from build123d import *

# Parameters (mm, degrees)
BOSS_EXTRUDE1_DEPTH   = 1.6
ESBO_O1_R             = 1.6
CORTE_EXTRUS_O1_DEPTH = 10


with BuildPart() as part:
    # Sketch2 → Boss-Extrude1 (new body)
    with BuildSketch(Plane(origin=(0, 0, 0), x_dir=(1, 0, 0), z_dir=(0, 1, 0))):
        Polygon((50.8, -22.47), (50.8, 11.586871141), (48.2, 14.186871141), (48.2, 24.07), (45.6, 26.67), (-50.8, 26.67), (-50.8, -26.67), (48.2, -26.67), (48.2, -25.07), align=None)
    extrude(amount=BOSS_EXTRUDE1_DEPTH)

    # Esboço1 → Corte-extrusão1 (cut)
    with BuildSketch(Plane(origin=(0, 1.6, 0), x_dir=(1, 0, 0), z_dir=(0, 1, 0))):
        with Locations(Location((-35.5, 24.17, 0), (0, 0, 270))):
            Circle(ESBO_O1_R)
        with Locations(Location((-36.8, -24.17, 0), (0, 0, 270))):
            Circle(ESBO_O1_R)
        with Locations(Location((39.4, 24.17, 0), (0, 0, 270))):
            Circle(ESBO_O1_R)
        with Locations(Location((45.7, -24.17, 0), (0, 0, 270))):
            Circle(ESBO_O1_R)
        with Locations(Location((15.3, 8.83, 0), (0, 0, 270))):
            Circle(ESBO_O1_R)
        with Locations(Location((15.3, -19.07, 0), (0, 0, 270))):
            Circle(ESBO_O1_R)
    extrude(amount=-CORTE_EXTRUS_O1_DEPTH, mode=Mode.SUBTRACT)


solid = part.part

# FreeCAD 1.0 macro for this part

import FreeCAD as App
import Part
import Sketcher
Q = App.Units.Quantity


def add_polygon(sketch, points):
    """Adds a closed chain of lines whose ends are joined by coincident constraints."""
    first, n = sketch.GeometryCount, len(points)
    for a, b in zip(points, points[1:] + points[:1]):
        sketch.addGeometry(Part.LineSegment(App.Vector(*a, 0), App.Vector(*b, 0)), False)
    for i in range(n):
        sketch.addConstraint(Sketcher.Constraint("Coincident", first + i, 2, first + (i + 1) % n, 1))

doc = App.newDocument("Part")
params = doc.addObject("Spreadsheet::Sheet", "Params")
for row, (alias, value) in enumerate([
    ("sketch1_width", "99 mm"),
    ("sketch1_width2", "96.4 mm"),
    ("sketch1_height", "1.6 mm"),
    ("sketch1_height2", "53.34 mm"),
    ("pad1_length", "1.6 mm"),
    ("sketch2_diameter", "3.2 mm"),
    ("pocket1_length", "10 mm"),
], start=1):
    params.set(f"A{row}", alias)
    params.set(f"B{row}", "=" + value)
    params.setAlias(f"B{row}", alias)

body = doc.addObject("PartDesign::Body", "Body")

sketch1 = body.newObject("Sketcher::SketchObject", "Sketch")
sketch1.AttachmentSupport = (doc.getObject("XZ_Plane"), [""])
sketch1.MapMode = "FlatFace"
add_polygon(sketch1, [(50.8, 22.5), (50.8, -11.6), (48.2, -14.2), (48.2, -24.1), (45.6, -26.7), (-50.8, -26.7), (-50.8, 26.7), (48.2, 26.7), (48.2, 25.1)])
sketch1.addConstraint(Sketcher.Constraint("Vertical", 0))
sketch1.addConstraint(Sketcher.Constraint("Vertical", 2))
sketch1.addConstraint(Sketcher.Constraint("Horizontal", 4))
sketch1.addConstraint(Sketcher.Constraint("Vertical", 5))
sketch1.addConstraint(Sketcher.Constraint("Horizontal", 6))
sketch1.addConstraint(Sketcher.Constraint("Vertical", 7))
sketch1.addConstraint(Sketcher.Constraint("Parallel", 1, 3))
sketch1.addConstraint(Sketcher.Constraint("Perpendicular", 3, 8))
sketch1.addConstraint(Sketcher.Constraint("Vertical", 2, 2, 6, 2))
sketch1.addConstraint(Sketcher.Constraint("Equal", 1, 3))
sketch1.addConstraint(Sketcher.Constraint("Equal", 3, 8))
sketch1.addConstraint(Sketcher.Constraint("DistanceX", 6, 1, 6, 2, Q("99 mm")))
sketch1.addConstraint(Sketcher.Constraint("DistanceX", 4, 2, 4, 1, Q("96.4 mm")))
sketch1.addConstraint(Sketcher.Constraint("DistanceY", 7, 2, 7, 1, Q("1.6 mm")))
sketch1.addConstraint(Sketcher.Constraint("DistanceY", 5, 1, 5, 2, Q("53.34 mm")))
sketch1.addConstraint(Sketcher.Constraint("DistanceX", -1, 1, 0, 2, Q("50.8 mm")))
sketch1.addConstraint(Sketcher.Constraint("DistanceY", 2, 2, -1, 1, Q("24.07 mm")))
sketch1.addConstraint(Sketcher.Constraint("DistanceY", 0, 2, 0, 1, Q("34.056871 mm")))
sketch1.setExpression("Constraints[20]", "Params.sketch1_width")
sketch1.setExpression("Constraints[21]", "Params.sketch1_width2")
sketch1.setExpression("Constraints[22]", "Params.sketch1_height")
sketch1.setExpression("Constraints[23]", "Params.sketch1_height2")
pad1 = body.newObject("PartDesign::Pad", "Pad")
pad1.Profile = sketch1
pad1.setExpression("Length", "Params.pad1_length")
pad1.Reversed = True

sketch2 = body.newObject("Sketcher::SketchObject", "Sketch001")
sketch2.AttachmentSupport = (doc.getObject("XZ_Plane"), [""])
sketch2.MapMode = "FlatFace"
sketch2.AttachmentOffset = App.Placement(App.Vector(0, 0, -1.6), App.Rotation())
sketch2.addGeometry(Part.Circle(App.Vector(-35.5, -24.2, 0), App.Vector(0, 0, 1), 1.6), False)
sketch2.addGeometry(Part.Circle(App.Vector(-36.8, 24.2, 0), App.Vector(0, 0, 1), 1.6), False)
sketch2.addGeometry(Part.Circle(App.Vector(39.4, -24.2, 0), App.Vector(0, 0, 1), 1.6), False)
sketch2.addGeometry(Part.Circle(App.Vector(45.7, 24.2, 0), App.Vector(0, 0, 1), 1.6), False)
sketch2.addGeometry(Part.Circle(App.Vector(15.3, -8.8, 0), App.Vector(0, 0, 1), 1.6), False)
sketch2.addGeometry(Part.Circle(App.Vector(15.3, 19.1, 0), App.Vector(0, 0, 1), 1.6), False)
sketch2.addConstraint(Sketcher.Constraint("Equal", 0, 1))
sketch2.addConstraint(Sketcher.Constraint("Equal", 1, 2))
sketch2.addConstraint(Sketcher.Constraint("Equal", 2, 3))
sketch2.addConstraint(Sketcher.Constraint("Equal", 3, 4))
sketch2.addConstraint(Sketcher.Constraint("Equal", 4, 5))
sketch2.addConstraint(Sketcher.Constraint("Horizontal", 0, 3, 2, 3))
sketch2.addConstraint(Sketcher.Constraint("Horizontal", 1, 3, 3, 3))
sketch2.addConstraint(Sketcher.Constraint("Vertical", 4, 3, 5, 3))
sketch2.addConstraint(Sketcher.Constraint("Diameter", 0, Q("3.2 mm")))
sketch2.addConstraint(Sketcher.Constraint("DistanceY", 4, 3, 3, 3, Q("33 mm")))
sketch2.addConstraint(Sketcher.Constraint("DistanceX", 0, 3, -1, 1, Q("35.5 mm")))
sketch2.addConstraint(Sketcher.Constraint("DistanceX", 1, 3, -1, 1, Q("36.8 mm")))
sketch2.addConstraint(Sketcher.Constraint("DistanceX", -1, 1, 2, 3, Q("39.4 mm")))
sketch2.addConstraint(Sketcher.Constraint("DistanceX", -1, 1, 3, 3, Q("45.7 mm")))
sketch2.addConstraint(Sketcher.Constraint("DistanceX", -1, 1, 4, 3, Q("15.3 mm")))
sketch2.addConstraint(Sketcher.Constraint("DistanceY", 4, 3, 5, 3, Q("27.9 mm")))
sketch2.addConstraint(Sketcher.Constraint("DistanceY", 0, 3, -1, 1, Q("24.17 mm")))
sketch2.addConstraint(Sketcher.Constraint("DistanceY", -1, 1, 1, 3, Q("24.17 mm")))
sketch2.setExpression("Constraints[8]", "Params.sketch2_diameter")
pocket1 = body.newObject("PartDesign::Pocket", "Pocket")
pocket1.Profile = sketch2
pocket1.setExpression("Length", "Params.pocket1_length")
pocket1.Reversed = True

doc.recompute()
